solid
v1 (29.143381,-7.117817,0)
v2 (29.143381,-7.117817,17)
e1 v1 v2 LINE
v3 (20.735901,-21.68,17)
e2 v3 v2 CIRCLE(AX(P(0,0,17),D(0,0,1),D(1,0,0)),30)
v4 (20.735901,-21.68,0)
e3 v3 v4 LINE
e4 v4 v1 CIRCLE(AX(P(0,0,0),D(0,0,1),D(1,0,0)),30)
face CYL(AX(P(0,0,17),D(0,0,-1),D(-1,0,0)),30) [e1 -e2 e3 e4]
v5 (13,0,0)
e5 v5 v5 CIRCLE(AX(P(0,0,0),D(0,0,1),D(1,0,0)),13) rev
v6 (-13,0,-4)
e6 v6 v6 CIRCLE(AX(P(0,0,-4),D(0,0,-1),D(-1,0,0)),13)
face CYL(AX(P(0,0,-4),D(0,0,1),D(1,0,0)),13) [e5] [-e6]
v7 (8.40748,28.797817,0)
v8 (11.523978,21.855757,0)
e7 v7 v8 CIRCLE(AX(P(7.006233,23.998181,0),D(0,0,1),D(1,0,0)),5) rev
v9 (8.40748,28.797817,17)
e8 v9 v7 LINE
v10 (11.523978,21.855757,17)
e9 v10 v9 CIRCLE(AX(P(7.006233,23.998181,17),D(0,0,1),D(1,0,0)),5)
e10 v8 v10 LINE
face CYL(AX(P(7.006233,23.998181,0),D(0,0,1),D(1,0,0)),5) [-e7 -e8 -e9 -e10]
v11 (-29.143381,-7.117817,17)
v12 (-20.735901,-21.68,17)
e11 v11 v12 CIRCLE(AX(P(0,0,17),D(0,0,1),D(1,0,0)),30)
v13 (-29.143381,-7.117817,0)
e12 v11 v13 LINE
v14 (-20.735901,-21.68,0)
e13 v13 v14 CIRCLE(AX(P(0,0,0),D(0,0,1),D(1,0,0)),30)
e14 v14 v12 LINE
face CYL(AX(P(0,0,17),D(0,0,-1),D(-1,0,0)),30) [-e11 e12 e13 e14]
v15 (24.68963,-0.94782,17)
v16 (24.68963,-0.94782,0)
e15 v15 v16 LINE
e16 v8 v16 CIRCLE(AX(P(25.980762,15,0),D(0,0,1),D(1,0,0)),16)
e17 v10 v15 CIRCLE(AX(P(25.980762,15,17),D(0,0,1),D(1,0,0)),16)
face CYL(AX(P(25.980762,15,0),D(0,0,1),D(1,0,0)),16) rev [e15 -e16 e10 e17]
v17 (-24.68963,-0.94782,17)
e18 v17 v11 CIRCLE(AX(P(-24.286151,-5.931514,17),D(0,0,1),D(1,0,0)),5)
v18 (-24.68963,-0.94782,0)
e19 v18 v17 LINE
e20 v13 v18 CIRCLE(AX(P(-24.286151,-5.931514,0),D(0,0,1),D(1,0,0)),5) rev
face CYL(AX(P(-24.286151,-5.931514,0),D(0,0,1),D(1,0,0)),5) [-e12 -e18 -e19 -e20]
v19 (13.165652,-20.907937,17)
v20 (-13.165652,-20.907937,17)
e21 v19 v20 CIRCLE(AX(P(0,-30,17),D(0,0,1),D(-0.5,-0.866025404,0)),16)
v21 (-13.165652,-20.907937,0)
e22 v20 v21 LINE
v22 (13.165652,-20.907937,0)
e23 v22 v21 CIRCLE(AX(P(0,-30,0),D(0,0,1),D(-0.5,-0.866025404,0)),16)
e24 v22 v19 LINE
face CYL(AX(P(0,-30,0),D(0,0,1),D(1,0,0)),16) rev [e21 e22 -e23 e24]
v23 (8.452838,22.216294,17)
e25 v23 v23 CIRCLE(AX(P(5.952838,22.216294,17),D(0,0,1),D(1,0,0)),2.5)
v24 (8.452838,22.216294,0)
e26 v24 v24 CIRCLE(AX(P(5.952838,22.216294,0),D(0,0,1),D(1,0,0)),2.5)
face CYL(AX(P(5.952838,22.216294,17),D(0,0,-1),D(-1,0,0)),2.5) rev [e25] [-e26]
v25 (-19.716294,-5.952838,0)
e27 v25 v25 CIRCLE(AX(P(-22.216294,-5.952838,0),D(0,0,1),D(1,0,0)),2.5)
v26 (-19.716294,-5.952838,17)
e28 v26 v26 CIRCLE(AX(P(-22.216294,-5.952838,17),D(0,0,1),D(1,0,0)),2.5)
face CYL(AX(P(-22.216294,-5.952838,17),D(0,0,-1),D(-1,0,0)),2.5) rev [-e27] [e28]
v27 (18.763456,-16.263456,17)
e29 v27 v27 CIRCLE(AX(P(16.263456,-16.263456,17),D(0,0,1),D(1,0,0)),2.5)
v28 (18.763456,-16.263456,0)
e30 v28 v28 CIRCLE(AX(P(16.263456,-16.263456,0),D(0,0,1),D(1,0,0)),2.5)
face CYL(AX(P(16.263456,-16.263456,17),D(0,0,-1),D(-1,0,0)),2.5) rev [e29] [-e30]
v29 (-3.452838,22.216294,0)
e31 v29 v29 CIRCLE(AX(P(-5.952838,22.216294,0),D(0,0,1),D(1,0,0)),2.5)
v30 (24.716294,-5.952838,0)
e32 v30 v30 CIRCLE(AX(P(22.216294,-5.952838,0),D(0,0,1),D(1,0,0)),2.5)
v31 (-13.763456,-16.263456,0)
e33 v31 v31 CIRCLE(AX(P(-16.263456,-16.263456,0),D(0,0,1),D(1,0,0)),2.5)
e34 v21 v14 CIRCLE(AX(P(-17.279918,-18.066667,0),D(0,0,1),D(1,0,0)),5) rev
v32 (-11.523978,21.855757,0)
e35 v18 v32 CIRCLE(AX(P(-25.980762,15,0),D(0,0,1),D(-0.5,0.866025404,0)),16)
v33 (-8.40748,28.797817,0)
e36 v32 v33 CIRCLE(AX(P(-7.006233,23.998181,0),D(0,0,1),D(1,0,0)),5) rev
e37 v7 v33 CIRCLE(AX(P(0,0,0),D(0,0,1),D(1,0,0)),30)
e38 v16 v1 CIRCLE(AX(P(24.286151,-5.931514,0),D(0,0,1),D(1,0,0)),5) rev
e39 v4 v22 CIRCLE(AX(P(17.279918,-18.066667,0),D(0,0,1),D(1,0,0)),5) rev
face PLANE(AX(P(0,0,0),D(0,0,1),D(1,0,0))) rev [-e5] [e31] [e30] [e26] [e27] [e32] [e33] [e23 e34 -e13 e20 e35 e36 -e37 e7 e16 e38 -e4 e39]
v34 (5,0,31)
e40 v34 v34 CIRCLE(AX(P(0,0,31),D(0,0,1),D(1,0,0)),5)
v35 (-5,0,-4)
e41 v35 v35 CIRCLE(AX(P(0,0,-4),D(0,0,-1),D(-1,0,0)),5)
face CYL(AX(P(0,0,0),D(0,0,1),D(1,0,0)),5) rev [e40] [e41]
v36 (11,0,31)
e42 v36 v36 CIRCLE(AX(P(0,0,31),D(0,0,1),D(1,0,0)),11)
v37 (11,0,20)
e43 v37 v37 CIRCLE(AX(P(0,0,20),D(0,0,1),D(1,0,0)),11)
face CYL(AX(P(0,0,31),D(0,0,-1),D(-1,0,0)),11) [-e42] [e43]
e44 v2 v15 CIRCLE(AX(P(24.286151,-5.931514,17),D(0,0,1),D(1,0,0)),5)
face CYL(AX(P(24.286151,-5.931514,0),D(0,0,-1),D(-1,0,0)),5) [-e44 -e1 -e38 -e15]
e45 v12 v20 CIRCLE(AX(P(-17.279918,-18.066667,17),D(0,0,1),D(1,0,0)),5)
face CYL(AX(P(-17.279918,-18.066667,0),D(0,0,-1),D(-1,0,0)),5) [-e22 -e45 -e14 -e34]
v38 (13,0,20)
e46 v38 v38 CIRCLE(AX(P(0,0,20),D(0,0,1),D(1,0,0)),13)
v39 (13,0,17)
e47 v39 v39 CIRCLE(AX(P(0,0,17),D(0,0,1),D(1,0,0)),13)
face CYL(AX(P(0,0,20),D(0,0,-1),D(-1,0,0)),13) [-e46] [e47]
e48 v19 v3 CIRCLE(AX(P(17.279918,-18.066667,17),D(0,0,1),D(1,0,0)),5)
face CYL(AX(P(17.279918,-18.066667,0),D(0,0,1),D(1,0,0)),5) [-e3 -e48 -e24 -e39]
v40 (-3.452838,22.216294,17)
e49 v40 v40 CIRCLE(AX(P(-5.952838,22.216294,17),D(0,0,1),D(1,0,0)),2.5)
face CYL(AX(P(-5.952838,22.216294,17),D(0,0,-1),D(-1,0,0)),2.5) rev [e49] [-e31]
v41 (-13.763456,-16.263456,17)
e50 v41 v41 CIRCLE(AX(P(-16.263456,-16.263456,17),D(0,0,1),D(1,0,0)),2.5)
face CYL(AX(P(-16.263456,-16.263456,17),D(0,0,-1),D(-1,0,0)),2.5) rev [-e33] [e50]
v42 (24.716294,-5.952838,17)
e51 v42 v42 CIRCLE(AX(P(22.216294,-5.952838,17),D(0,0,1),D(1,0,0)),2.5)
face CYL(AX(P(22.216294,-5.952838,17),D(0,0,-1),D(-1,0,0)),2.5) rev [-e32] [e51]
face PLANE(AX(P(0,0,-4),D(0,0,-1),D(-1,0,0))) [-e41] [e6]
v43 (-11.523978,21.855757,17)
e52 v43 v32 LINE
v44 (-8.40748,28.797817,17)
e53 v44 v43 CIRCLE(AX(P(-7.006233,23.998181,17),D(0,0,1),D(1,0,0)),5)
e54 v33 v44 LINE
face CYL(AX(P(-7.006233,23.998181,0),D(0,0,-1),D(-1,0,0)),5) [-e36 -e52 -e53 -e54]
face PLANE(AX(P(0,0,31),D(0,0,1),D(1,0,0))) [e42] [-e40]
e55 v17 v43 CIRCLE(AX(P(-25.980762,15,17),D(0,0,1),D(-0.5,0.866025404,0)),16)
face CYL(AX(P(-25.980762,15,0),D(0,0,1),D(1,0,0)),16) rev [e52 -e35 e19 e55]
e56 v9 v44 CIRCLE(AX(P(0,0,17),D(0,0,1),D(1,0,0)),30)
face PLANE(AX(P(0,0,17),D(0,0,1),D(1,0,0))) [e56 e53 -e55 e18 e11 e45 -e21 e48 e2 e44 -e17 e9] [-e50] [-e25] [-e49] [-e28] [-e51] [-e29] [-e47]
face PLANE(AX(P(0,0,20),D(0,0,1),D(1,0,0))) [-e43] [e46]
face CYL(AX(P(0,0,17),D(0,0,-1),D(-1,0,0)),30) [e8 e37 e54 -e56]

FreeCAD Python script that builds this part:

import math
import FreeCAD as App
import Part
import Sketcher
from FreeCAD import Vector
Q = App.Units.Quantity


def edges_at(feature, points):
    """Names of the edges that pass closest to the given points."""
    edges = feature.Shape.Edges
    near = lambda p: min(range(len(edges)), key=lambda i: edges[i].distToShape(Part.Vertex(*p))[0])
    return sorted({f"Edge{near(p) + 1}" for p in points})

doc = App.newDocument("Part")
body = doc.addObject("PartDesign::Body", "Body")

sketch1 = body.newObject("Sketcher::SketchObject", "Sketch")
sketch1.AttachmentSupport = (doc.getObject("XY_Plane"), [""])
sketch1.MapMode = "FlatFace"
sketch1.addGeometry(Part.Circle(Vector(0, 0, 0), Vector(0, 0, 1), 30), False)
sketch1.addGeometry(Part.Circle(Vector(-16.3, -16.3, 0), Vector(0, 0, 1), 2.5), False)
sketch1.addGeometry(Part.Circle(Vector(-22.2, -6, 0), Vector(0, 0, 1), 2.5), False)
sketch1.addGeometry(Part.Circle(Vector(16.3, -16.3, 0), Vector(0, 0, 1), 2.5), False)
sketch1.addGeometry(Part.Circle(Vector(22.2, -6, 0), Vector(0, 0, 1), 2.5), False)
sketch1.addGeometry(Part.Circle(Vector(-6, 22.2, 0), Vector(0, 0, 1), 2.5), False)
sketch1.addGeometry(Part.Circle(Vector(6, 22.2, 0), Vector(0, 0, 1), 2.5), False)
sketch1.addConstraint(Sketcher.Constraint("Coincident", 0, 3, -1, 1))
sketch1.addConstraint(Sketcher.Constraint("Equal", 1, 2))
sketch1.addConstraint(Sketcher.Constraint("Equal", 2, 3))
sketch1.addConstraint(Sketcher.Constraint("Equal", 3, 4))
sketch1.addConstraint(Sketcher.Constraint("Equal", 4, 5))
sketch1.addConstraint(Sketcher.Constraint("Equal", 5, 6))
sketch1.addConstraint(Sketcher.Constraint("Symmetric", 1, 3, 3, 3, -2))
sketch1.addConstraint(Sketcher.Constraint("Symmetric", 2, 3, 4, 3, -2))
sketch1.addConstraint(Sketcher.Constraint("Symmetric", 5, 3, 6, 3, -2))
sketch1.addConstraint(Sketcher.Constraint("Diameter", 0, Q("60 mm")))
sketch1.addConstraint(Sketcher.Constraint("Diameter", 1, Q("5 mm")))
sketch1.addConstraint(Sketcher.Constraint("DistanceY", 2, 3, -1, 1, Q("5.952838 mm")))
sketch1.addConstraint(Sketcher.Constraint("DistanceX", 5, 3, -1, 1, Q("5.952838 mm")))
sketch1.addConstraint(Sketcher.Constraint("DistanceX", 2, 3, 1, 3, Q("5.952838 mm")))
sketch1.addConstraint(Sketcher.Constraint("DistanceX", 1, 3, 3, 3, Q("32.526912 mm")))
sketch1.addConstraint(Sketcher.Constraint("DistanceY", 1, 3, 5, 3, Q("38.47975 mm")))
sketch1.addConstraint(Sketcher.Constraint("DistanceY", 1, 3, -1, 1, Q("16.263456 mm")))
pad1 = body.newObject("PartDesign::Pad", "Pad")
pad1.Profile = sketch1
pad1.Length = 17

sketch2 = body.newObject("Sketcher::SketchObject", "Sketch001")
sketch2.AttachmentSupport = (doc.getObject("XY_Plane"), [""])
sketch2.MapMode = "FlatFace"
sketch2.AttachmentOffset = App.Placement(Vector(0, 0, 17), App.Rotation())
sketch2.addGeometry(Part.Circle(Vector(26, 15, 0), Vector(0, 0, 1), 16), False)
sketch2.addConstraint(Sketcher.Constraint("Diameter", 0, Q("32 mm")))
sketch2.addConstraint(Sketcher.Constraint("DistanceY", -1, 1, 0, 3, Q("15 mm")))
sketch2.addConstraint(Sketcher.Constraint("DistanceX", -1, 1, 0, 3, Q("25.980762 mm")))
pocket1 = body.newObject("PartDesign::Pocket", "Pocket")
pocket1.Profile = sketch2
pocket1.Type = "ThroughAll"
doc.recompute()

polarpattern = body.newObject("PartDesign::PolarPattern", "PolarPattern")
polarpattern.Originals = [pocket1]
polarpattern.Axis = (doc.getObject("Z_Axis"), [""])
polarpattern.Angle = 360
polarpattern.Occurrences = 3
body.Tip = polarpattern

sketch3 = body.newObject("Sketcher::SketchObject", "Sketch002")
sketch3.AttachmentSupport = (doc.getObject("XY_Plane"), [""])
sketch3.MapMode = "FlatFace"
sketch3.AttachmentOffset = App.Placement(Vector(0, 0, 17), App.Rotation())
sketch3.addGeometry(Part.Circle(Vector(0, 0, 0), Vector(0, 0, 1), 11), False)
sketch3.addConstraint(Sketcher.Constraint("Coincident", 0, 3, -1, 1))
sketch3.addConstraint(Sketcher.Constraint("Diameter", 0, Q("22 mm")))
pad2 = body.newObject("PartDesign::Pad", "Pad001")
pad2.Profile = sketch3
pad2.Length = 14

sketch4 = body.newObject("Sketcher::SketchObject", "Sketch003")
sketch4.AttachmentSupport = (doc.getObject("XY_Plane"), [""])
sketch4.MapMode = "FlatFace"
sketch4.AttachmentOffset = App.Placement(Vector(0, 0, 31), App.Rotation())
sketch4.addGeometry(Part.Circle(Vector(0, 0, 0), Vector(0, 0, 1), 5), False)
sketch4.addConstraint(Sketcher.Constraint("Coincident", 0, 3, -1, 1))
sketch4.addConstraint(Sketcher.Constraint("Diameter", 0, Q("10 mm")))
pocket2 = body.newObject("PartDesign::Pocket", "Pocket001")
pocket2.Profile = sketch4
pocket2.Type = "ThroughAll"

sketch5 = body.newObject("Sketcher::SketchObject", "Sketch004")
sketch5.AttachmentSupport = (doc.getObject("XY_Plane"), [""])
sketch5.MapMode = "FlatFace"
sketch5.AttachmentOffset = App.Placement(Vector(0, 0, 31), App.Rotation())
sketch5.addGeometry(Part.LineSegment(Vector(-2, 6.2, 0), Vector(-2, 3.8, 0)), False)
sketch5.addGeometry(Part.LineSegment(Vector(-2, 3.8, 0), Vector(2, 3.8, 0)), False)
sketch5.addGeometry(Part.LineSegment(Vector(2, 3.8, 0), Vector(2, 6.2, 0)), False)
sketch5.addGeometry(Part.LineSegment(Vector(2, 6.2, 0), Vector(-2, 6.2, 0)), False)
sketch5.addConstraint(Sketcher.Constraint("Coincident", 0, 2, 1, 1))
sketch5.addConstraint(Sketcher.Constraint("Coincident", 1, 2, 2, 1))
sketch5.addConstraint(Sketcher.Constraint("Coincident", 2, 2, 3, 1))
sketch5.addConstraint(Sketcher.Constraint("Coincident", 3, 2, 0, 1))
sketch5.addConstraint(Sketcher.Constraint("Vertical", 0))
sketch5.addConstraint(Sketcher.Constraint("Horizontal", 1))
sketch5.addConstraint(Sketcher.Constraint("Vertical", 2))
sketch5.addConstraint(Sketcher.Constraint("Horizontal", 3))
sketch5.addConstraint(Sketcher.Constraint("DistanceX", 1, 1, 1, 2, Q("4 mm")))
sketch5.addConstraint(Sketcher.Constraint("DistanceY", 0, 2, 0, 1, Q("2.5 mm")))
sketch5.addConstraint(Sketcher.Constraint("DistanceX", 0, 2, -1, 1, Q("2 mm")))
sketch5.addConstraint(Sketcher.Constraint("DistanceY", -1, 1, 0, 2, Q("3.75 mm")))
pocket3 = body.newObject("PartDesign::Pocket", "Pocket002")
pocket3.Profile = sketch5
pocket3.Type = "ThroughAll"

sketch6 = body.newObject("Sketcher::SketchObject", "Sketch005")
sketch6.AttachmentSupport = (doc.getObject("XY_Plane"), [""])
sketch6.MapMode = "FlatFace"
sketch6.addGeometry(Part.Circle(Vector(0, 0, 0), Vector(0, 0, 1), 13), False)
sketch6.addGeometry(Part.ArcOfCircle(Part.Circle(Vector(0, 0, 0), Vector(0, 0, 1), 5), math.radians(114), math.radians(426)), False)
sketch6.addGeometry(Part.LineSegment(Vector(2, 4.6, 0), Vector(2, 6.2, 0)), False)
sketch6.addGeometry(Part.LineSegment(Vector(2, 6.2, 0), Vector(-2, 6.2, 0)), False)
sketch6.addGeometry(Part.LineSegment(Vector(-2, 6.2, 0), Vector(-2, 4.6, 0)), False)
sketch6.addConstraint(Sketcher.Constraint("Coincident", 1, 2, 2, 1))
sketch6.addConstraint(Sketcher.Constraint("Coincident", 2, 2, 3, 1))
sketch6.addConstraint(Sketcher.Constraint("Coincident", 3, 2, 4, 1))
sketch6.addConstraint(Sketcher.Constraint("Coincident", 4, 2, 1, 1))
sketch6.addConstraint(Sketcher.Constraint("Vertical", 2))
sketch6.addConstraint(Sketcher.Constraint("Horizontal", 3))
sketch6.addConstraint(Sketcher.Constraint("Vertical", 4))
sketch6.addConstraint(Sketcher.Constraint("Coincident", 0, 3, -1, 1))
sketch6.addConstraint(Sketcher.Constraint("Coincident", 1, 3, -1, 1))
sketch6.addConstraint(Sketcher.Constraint("Horizontal", 1, 2, 4, 2))
sketch6.addConstraint(Sketcher.Constraint("Diameter", 0, Q("26 mm")))
sketch6.addConstraint(Sketcher.Constraint("Radius", 1, Q("5 mm")))
sketch6.addConstraint(Sketcher.Constraint("DistanceX", 3, 2, 3, 1, Q("4 mm")))
sketch6.addConstraint(Sketcher.Constraint("DistanceY", -1, 1, 2, 2, Q("6.25 mm")))
pad3 = body.newObject("PartDesign::Pad", "Pad002")
pad3.Profile = sketch6
pad3.Length = 4
pad3.Reversed = True

sketch7 = body.newObject("Sketcher::SketchObject", "Sketch006")
sketch7.AttachmentSupport = (doc.getObject("XY_Plane"), [""])
sketch7.MapMode = "FlatFace"
sketch7.AttachmentOffset = App.Placement(Vector(0, 0, -4), App.Rotation())
sketch7.addGeometry(Part.LineSegment(Vector(2, 6.2, 0), Vector(2, 4.6, 0)), False)
sketch7.addGeometry(Part.ArcOfCircle(Part.Circle(Vector(0, 0, 0), Vector(0, 0, 1), 5), math.radians(66), math.radians(114)), False)
sketch7.addGeometry(Part.LineSegment(Vector(-2, 4.6, 0), Vector(-2, 6.2, 0)), False)
sketch7.addGeometry(Part.LineSegment(Vector(-2, 6.2, 0), Vector(2, 6.2, 0)), False)
sketch7.addConstraint(Sketcher.Constraint("Coincident", 0, 2, 1, 1))
sketch7.addConstraint(Sketcher.Constraint("Coincident", 1, 2, 2, 1))
sketch7.addConstraint(Sketcher.Constraint("Coincident", 2, 2, 3, 1))
sketch7.addConstraint(Sketcher.Constraint("Coincident", 3, 2, 0, 1))
sketch7.addConstraint(Sketcher.Constraint("Vertical", 0))
sketch7.addConstraint(Sketcher.Constraint("Vertical", 2))
sketch7.addConstraint(Sketcher.Constraint("Horizontal", 3))
sketch7.addConstraint(Sketcher.Constraint("Coincident", 1, 3, -1, 1))
sketch7.addConstraint(Sketcher.Constraint("Horizontal", 0, 2, 1, 2))
sketch7.addConstraint(Sketcher.Constraint("Radius", 1, Q("5 mm")))
sketch7.addConstraint(Sketcher.Constraint("DistanceX", 3, 1, 3, 2, Q("4 mm")))
sketch7.addConstraint(Sketcher.Constraint("DistanceY", -1, 1, 2, 2, Q("6.25 mm")))
pad4 = body.newObject("PartDesign::Pad", "Pad003")
pad4.Profile = sketch7
pad4.Length = 35

sketch8 = body.newObject("Sketcher::SketchObject", "Sketch007")
sketch8.AttachmentSupport = (doc.getObject("XY_Plane"), [""])
sketch8.MapMode = "FlatFace"
sketch8.AttachmentOffset = App.Placement(Vector(0, 0, 17), App.Rotation())
sketch8.addGeometry(Part.Circle(Vector(0, 0, 0), Vector(0, 0, 1), 13), False)
sketch8.addGeometry(Part.Circle(Vector(0, 0, 0), Vector(0, 0, 1), 11), False)
sketch8.addConstraint(Sketcher.Constraint("Coincident", 0, 3, -1, 1))
sketch8.addConstraint(Sketcher.Constraint("Coincident", 1, 3, -1, 1))
sketch8.addConstraint(Sketcher.Constraint("Diameter", 0, Q("26 mm")))
sketch8.addConstraint(Sketcher.Constraint("Diameter", 1, Q("22 mm")))
pad5 = body.newObject("PartDesign::Pad", "Pad004")
pad5.Profile = sketch8
pad5.Length = 3
doc.recompute()

fillet = body.newObject("PartDesign::Fillet", "Fillet")
fillet.Base = (pad5, edges_at(pad5, [
    (14.575, 26.221, 8.5),
    (29.996, -0.488, 8.5),
    (-29.996, -0.488, 8.5),
    (-14.575, 26.221, 8.5),
    (15.421, -25.733, 8.5),
    (-15.421, -25.733, 8.5),
]))
fillet.Radius = 5

doc.recompute()
